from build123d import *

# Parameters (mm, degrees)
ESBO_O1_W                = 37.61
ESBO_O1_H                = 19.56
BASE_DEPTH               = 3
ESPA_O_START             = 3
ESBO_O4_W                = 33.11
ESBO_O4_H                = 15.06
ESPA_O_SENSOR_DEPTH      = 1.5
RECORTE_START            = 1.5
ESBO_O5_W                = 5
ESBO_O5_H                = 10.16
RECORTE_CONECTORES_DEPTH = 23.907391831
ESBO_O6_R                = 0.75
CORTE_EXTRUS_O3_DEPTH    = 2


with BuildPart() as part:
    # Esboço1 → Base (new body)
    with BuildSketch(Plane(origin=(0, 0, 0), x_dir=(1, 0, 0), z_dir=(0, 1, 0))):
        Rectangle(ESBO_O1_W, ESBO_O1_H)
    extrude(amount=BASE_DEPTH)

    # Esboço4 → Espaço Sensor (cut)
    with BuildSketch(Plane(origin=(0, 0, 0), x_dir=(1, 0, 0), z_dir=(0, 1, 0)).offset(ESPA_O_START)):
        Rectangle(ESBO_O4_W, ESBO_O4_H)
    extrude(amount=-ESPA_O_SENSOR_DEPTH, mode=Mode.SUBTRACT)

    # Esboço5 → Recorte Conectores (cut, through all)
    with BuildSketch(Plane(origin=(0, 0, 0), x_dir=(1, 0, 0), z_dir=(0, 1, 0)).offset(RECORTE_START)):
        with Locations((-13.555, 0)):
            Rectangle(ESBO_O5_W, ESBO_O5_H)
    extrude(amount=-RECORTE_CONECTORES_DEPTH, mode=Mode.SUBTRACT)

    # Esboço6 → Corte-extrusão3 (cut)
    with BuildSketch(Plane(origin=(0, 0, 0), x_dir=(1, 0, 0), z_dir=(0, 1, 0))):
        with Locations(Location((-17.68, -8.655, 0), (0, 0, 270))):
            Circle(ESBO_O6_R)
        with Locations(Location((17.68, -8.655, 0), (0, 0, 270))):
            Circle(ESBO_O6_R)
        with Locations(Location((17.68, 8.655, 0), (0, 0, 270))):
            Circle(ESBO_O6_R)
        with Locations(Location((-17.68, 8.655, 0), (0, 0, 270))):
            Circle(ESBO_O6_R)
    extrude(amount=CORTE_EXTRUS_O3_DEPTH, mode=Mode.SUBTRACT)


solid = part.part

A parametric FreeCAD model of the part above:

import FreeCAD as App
import Part
import Sketcher
Q = App.Units.Quantity


def add_polygon(sketch, points):
    """Adds a closed chain of lines whose ends are joined by coincident constraints."""
    first, n = sketch.GeometryCount, len(points)
    for a, b in zip(points, points[1:] + points[:1]):
        sketch.addGeometry(Part.LineSegment(App.Vector(*a, 0), App.Vector(*b, 0)), False)
    for i in range(n):
        sketch.addConstraint(Sketcher.Constraint("Coincident", first + i, 2, first + (i + 1) % n, 1))

doc = App.newDocument("Part")
body = doc.addObject("PartDesign::Body", "Body")

# Sketch on XZ plane
sketch1 = doc.addObject("Sketcher::SketchObject", "Sketch")
body.addObject(sketch1)
sketch1.AttachmentSupport = (doc.XZ_Plane, [""])
sketch1.MapMode = "FlatFace"
add_polygon(sketch1, [(-19, -10), (-19, 10), (19, 10), (19, -10)])  # lines 0-3
sketch1.addConstraint(Sketcher.Constraint("Vertical", 0))
sketch1.addConstraint(Sketcher.Constraint("Horizontal", 1))
sketch1.addConstraint(Sketcher.Constraint("Vertical", 2))
sketch1.addConstraint(Sketcher.Constraint("Horizontal", 3))
sketch1.addConstraint(Sketcher.Constraint("Symmetric", 0, 2, 2, 2, -1, 1))
sketch1.addConstraint(Sketcher.Constraint("DistanceX", 1, 1, 1, 2, Q("37.61 mm")))
sketch1.addConstraint(Sketcher.Constraint("DistanceY", 0, 1, 0, 2, Q("19.56 mm")))
pad1 = doc.addObject("PartDesign::Pad", "Pad")
body.addObject(pad1)
pad1.Profile = sketch1
pad1.Length = 3
pad1.Reversed = True

# Sketch on XZ plane
sketch2 = doc.addObject("Sketcher::SketchObject", "Sketch001")
body.addObject(sketch2)
sketch2.AttachmentSupport = (doc.XZ_Plane, [""])
sketch2.MapMode = "FlatFace"
sketch2.AttachmentOffset = App.Placement(App.Vector(0, 0, -3), App.Rotation())
add_polygon(sketch2, [(-17, -8), (-17, 8), (17, 8), (17, -8)])  # lines 0-3
sketch2.addConstraint(Sketcher.Constraint("Vertical", 0))
sketch2.addConstraint(Sketcher.Constraint("Horizontal", 1))
sketch2.addConstraint(Sketcher.Constraint("Vertical", 2))
sketch2.addConstraint(Sketcher.Constraint("Horizontal", 3))
sketch2.addConstraint(Sketcher.Constraint("Symmetric", 0, 2, 2, 2, -1, 1))
sketch2.addConstraint(Sketcher.Constraint("DistanceX", 1, 1, 1, 2, Q("33.11 mm")))
sketch2.addConstraint(Sketcher.Constraint("DistanceY", 0, 1, 0, 2, Q("15.06 mm")))
pocket1 = doc.addObject("PartDesign::Pocket", "Pocket")
body.addObject(pocket1)
pocket1.Profile = sketch2
pocket1.Length = 1.5
pocket1.Reversed = True

# Sketch on XZ plane
sketch3 = doc.addObject("Sketcher::SketchObject", "Sketch002")
body.addObject(sketch3)
sketch3.AttachmentSupport = (doc.XZ_Plane, [""])
sketch3.MapMode = "FlatFace"
sketch3.AttachmentOffset = App.Placement(App.Vector(0, 0, -1.5), App.Rotation())
add_polygon(sketch3, [(-16, -5), (-16, 5), (-11, 5), (-11, -5)])  # lines 0-3
sketch3.addConstraint(Sketcher.Constraint("Vertical", 0))
sketch3.addConstraint(Sketcher.Constraint("Horizontal", 1))
sketch3.addConstraint(Sketcher.Constraint("Vertical", 2))
sketch3.addConstraint(Sketcher.Constraint("Horizontal", 3))
sketch3.addConstraint(Sketcher.Constraint("DistanceX", 1, 1, 1, 2, Q("5 mm")))
sketch3.addConstraint(Sketcher.Constraint("DistanceY", 0, 1, 0, 2, Q("10.16 mm")))
sketch3.addConstraint(Sketcher.Constraint("DistanceY", -1, 1, 0, 2, Q("5.08 mm")))
sketch3.addConstraint(Sketcher.Constraint("DistanceX", 0, 2, -1, 1, Q("16.055 mm")))
pocket2 = doc.addObject("PartDesign::Pocket", "Pocket001")
body.addObject(pocket2)
pocket2.Profile = sketch3
pocket2.Type = "ThroughAll"
pocket2.Reversed = True

# Sketch on XZ plane
sketch4 = doc.addObject("Sketcher::SketchObject", "Sketch003")
body.addObject(sketch4)
sketch4.AttachmentSupport = (doc.XZ_Plane, [""])
sketch4.MapMode = "FlatFace"
sketch4.addGeometry(Part.Circle(App.Vector(-17.7, 8.7, 0), App.Vector(0, 0, 1), 0.8), False)
sketch4.addGeometry(Part.Circle(App.Vector(17.7, 8.7, 0), App.Vector(0, 0, 1), 0.8), False)
sketch4.addGeometry(Part.Circle(App.Vector(17.7, -8.7, 0), App.Vector(0, 0, 1), 0.8), False)
sketch4.addGeometry(Part.Circle(App.Vector(-17.7, -8.7, 0), App.Vector(0, 0, 1), 0.8), False)
sketch4.addConstraint(Sketcher.Constraint("Equal", 0, 1))
sketch4.addConstraint(Sketcher.Constraint("Equal", 1, 2))
sketch4.addConstraint(Sketcher.Constraint("Equal", 2, 3))
sketch4.addConstraint(Sketcher.Constraint("Symmetric", 0, 3, 2, 3, -1, 1))
sketch4.addConstraint(Sketcher.Constraint("Symmetric", 1, 3, 3, 3, -1, 1))
sketch4.addConstraint(Sketcher.Constraint("Symmetric", 0, 3, 1, 3, -2))
sketch4.addConstraint(Sketcher.Constraint("Diameter", 0, Q("1.5 mm")))
sketch4.addConstraint(Sketcher.Constraint("DistanceX", 0, 3, -1, 1, Q("17.68 mm")))
sketch4.addConstraint(Sketcher.Constraint("DistanceY", 2, 3, 1, 3, Q("17.31 mm")))
pocket3 = doc.addObject("PartDesign::Pocket", "Pocket002")
body.addObject(pocket3)
pocket3.Profile = sketch4
pocket3.Length = 2

doc.recompute()
